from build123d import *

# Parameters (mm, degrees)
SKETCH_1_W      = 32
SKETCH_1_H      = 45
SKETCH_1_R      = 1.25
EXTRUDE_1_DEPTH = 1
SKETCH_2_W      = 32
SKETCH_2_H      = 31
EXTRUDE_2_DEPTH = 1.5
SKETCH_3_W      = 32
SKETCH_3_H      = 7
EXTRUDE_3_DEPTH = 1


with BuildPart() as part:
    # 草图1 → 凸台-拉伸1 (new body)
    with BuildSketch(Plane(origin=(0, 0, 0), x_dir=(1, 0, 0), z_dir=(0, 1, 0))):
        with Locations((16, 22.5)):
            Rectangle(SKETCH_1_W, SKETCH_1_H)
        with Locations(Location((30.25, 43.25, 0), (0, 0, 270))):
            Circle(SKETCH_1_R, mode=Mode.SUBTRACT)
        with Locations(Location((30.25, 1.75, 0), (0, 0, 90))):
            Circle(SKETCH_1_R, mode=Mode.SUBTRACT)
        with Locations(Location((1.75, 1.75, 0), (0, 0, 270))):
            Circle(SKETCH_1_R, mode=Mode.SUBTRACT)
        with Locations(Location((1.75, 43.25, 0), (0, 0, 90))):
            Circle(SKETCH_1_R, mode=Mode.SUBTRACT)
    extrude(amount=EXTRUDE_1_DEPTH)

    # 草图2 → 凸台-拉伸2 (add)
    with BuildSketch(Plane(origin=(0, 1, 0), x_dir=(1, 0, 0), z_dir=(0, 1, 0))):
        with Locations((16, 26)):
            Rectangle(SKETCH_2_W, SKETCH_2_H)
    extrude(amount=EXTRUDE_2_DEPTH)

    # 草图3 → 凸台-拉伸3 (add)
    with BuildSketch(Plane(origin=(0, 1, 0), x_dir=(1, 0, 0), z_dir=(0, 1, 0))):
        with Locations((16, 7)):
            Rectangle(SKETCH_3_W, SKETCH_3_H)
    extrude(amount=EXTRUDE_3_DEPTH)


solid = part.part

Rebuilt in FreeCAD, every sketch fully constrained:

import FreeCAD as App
import Part
import Sketcher

V = App.Vector
Q = App.Units.Quantity


def add_polygon(sketch, points):
    """Adds a closed chain of lines whose ends are joined by coincident constraints."""
    first, n = sketch.GeometryCount, len(points)
    for a, b in zip(points, points[1:] + points[:1]):
        sketch.addGeometry(Part.LineSegment(App.Vector(*a, 0), App.Vector(*b, 0)), False)
    for i in range(n):
        sketch.addConstraint(Sketcher.Constraint("Coincident", first + i, 2, first + (i + 1) % n, 1))

doc = App.newDocument("Part")
body = doc.addObject("PartDesign::Body", "Body")

sketch1 = body.newObject("Sketcher::SketchObject", "Sketch")
sketch1.AttachmentSupport = (doc.getObject("XZ_Plane"), [""])
sketch1.MapMode = "FlatFace"
add_polygon(sketch1, [(0, -45), (0, 0), (32, 0), (32, -45)])
sketch1.addGeometry(Part.Circle(V(1.8, -1.8, 0), V(0, 0, 1), 1.2), False)
sketch1.addGeometry(Part.Circle(V(30.2, -1.8, 0), V(0, 0, 1), 1.2), False)
sketch1.addGeometry(Part.Circle(V(1.8, -43.2, 0), V(0, 0, 1), 1.2), False)
sketch1.addGeometry(Part.Circle(V(30.2, -43.2, 0), V(0, 0, 1), 1.2), False)
sketch1.addConstraint([
    Sketcher.Constraint("Vertical", 0),
    Sketcher.Constraint("Horizontal", 1),
    Sketcher.Constraint("Vertical", 2),
    Sketcher.Constraint("Horizontal", 3),
    Sketcher.Constraint("Coincident", 0, 2, -1, 1),
    Sketcher.Constraint("Equal", 4, 5),
    Sketcher.Constraint("Equal", 5, 6),
    Sketcher.Constraint("Equal", 6, 7),
    Sketcher.Constraint("Horizontal", 4, 3, 5, 3),
    Sketcher.Constraint("Horizontal", 6, 3, 7, 3),
    Sketcher.Constraint("Vertical", 4, 3, 6, 3),
    Sketcher.Constraint("Vertical", 5, 3, 7, 3),
    Sketcher.Constraint("Diameter", 4, Q("2.5 mm")),
    Sketcher.Constraint("DistanceX", 1, 1, 1, 2, Q("32 mm")),
    Sketcher.Constraint("DistanceY", 0, 1, 0, 2, Q("45 mm")),
    Sketcher.Constraint("DistanceX", 4, 3, 5, 3, Q("28.5 mm")),
    Sketcher.Constraint("DistanceY", 6, 3, 4, 3, Q("41.5 mm")),
    Sketcher.Constraint("DistanceX", -1, 1, 4, 3, Q("1.75 mm")),
    Sketcher.Constraint("DistanceY", 4, 3, -1, 1, Q("1.75 mm")),
])
pad1 = body.newObject("PartDesign::Pad", "Pad")
pad1.Profile = sketch1
pad1.Length = 1
pad1.Reversed = True

sketch2 = body.newObject("Sketcher::SketchObject", "Sketch001")
sketch2.AttachmentSupport = (doc.getObject("XZ_Plane"), [""])
sketch2.MapMode = "FlatFace"
sketch2.AttachmentOffset = App.Placement(V(0, 0, -1), App.Rotation())
add_polygon(sketch2, [(0, -42), (0, -10), (32, -10), (32, -42)])
sketch2.addConstraint([
    Sketcher.Constraint("Vertical", 0),
    Sketcher.Constraint("Horizontal", 1),
    Sketcher.Constraint("Vertical", 2),
    Sketcher.Constraint("Horizontal", 3),
    Sketcher.Constraint("PointOnObject", 0, 2, -2),
    Sketcher.Constraint("DistanceX", 1, 1, 1, 2, Q("32 mm")),
    Sketcher.Constraint("DistanceY", 0, 1, 0, 2, Q("31 mm")),
    Sketcher.Constraint("DistanceY", 0, 2, -1, 1, Q("10.5 mm")),
])
pad2 = body.newObject("PartDesign::Pad", "Pad001")
pad2.Profile = sketch2
pad2.Length = 1.5
pad2.Reversed = True

sketch3 = body.newObject("Sketcher::SketchObject", "Sketch002")
sketch3.AttachmentSupport = (doc.getObject("XZ_Plane"), [""])
sketch3.MapMode = "FlatFace"
sketch3.AttachmentOffset = App.Placement(V(0, 0, -1), App.Rotation())
add_polygon(sketch3, [(0, -10), (0, -4), (32, -4), (32, -10)])
sketch3.addConstraint([
    Sketcher.Constraint("Vertical", 0),
    Sketcher.Constraint("Horizontal", 1),
    Sketcher.Constraint("Vertical", 2),
    Sketcher.Constraint("Horizontal", 3),
    Sketcher.Constraint("PointOnObject", 0, 2, -2),
    Sketcher.Constraint("DistanceX", 1, 1, 1, 2, Q("32 mm")),
    Sketcher.Constraint("DistanceY", 0, 1, 0, 2, Q("7 mm")),
    Sketcher.Constraint("DistanceY", 0, 2, -1, 1, Q("3.5 mm")),
])
pad3 = body.newObject("PartDesign::Pad", "Pad002")
pad3.Profile = sketch3
pad3.Length = 1
pad3.Reversed = True

doc.recompute()
